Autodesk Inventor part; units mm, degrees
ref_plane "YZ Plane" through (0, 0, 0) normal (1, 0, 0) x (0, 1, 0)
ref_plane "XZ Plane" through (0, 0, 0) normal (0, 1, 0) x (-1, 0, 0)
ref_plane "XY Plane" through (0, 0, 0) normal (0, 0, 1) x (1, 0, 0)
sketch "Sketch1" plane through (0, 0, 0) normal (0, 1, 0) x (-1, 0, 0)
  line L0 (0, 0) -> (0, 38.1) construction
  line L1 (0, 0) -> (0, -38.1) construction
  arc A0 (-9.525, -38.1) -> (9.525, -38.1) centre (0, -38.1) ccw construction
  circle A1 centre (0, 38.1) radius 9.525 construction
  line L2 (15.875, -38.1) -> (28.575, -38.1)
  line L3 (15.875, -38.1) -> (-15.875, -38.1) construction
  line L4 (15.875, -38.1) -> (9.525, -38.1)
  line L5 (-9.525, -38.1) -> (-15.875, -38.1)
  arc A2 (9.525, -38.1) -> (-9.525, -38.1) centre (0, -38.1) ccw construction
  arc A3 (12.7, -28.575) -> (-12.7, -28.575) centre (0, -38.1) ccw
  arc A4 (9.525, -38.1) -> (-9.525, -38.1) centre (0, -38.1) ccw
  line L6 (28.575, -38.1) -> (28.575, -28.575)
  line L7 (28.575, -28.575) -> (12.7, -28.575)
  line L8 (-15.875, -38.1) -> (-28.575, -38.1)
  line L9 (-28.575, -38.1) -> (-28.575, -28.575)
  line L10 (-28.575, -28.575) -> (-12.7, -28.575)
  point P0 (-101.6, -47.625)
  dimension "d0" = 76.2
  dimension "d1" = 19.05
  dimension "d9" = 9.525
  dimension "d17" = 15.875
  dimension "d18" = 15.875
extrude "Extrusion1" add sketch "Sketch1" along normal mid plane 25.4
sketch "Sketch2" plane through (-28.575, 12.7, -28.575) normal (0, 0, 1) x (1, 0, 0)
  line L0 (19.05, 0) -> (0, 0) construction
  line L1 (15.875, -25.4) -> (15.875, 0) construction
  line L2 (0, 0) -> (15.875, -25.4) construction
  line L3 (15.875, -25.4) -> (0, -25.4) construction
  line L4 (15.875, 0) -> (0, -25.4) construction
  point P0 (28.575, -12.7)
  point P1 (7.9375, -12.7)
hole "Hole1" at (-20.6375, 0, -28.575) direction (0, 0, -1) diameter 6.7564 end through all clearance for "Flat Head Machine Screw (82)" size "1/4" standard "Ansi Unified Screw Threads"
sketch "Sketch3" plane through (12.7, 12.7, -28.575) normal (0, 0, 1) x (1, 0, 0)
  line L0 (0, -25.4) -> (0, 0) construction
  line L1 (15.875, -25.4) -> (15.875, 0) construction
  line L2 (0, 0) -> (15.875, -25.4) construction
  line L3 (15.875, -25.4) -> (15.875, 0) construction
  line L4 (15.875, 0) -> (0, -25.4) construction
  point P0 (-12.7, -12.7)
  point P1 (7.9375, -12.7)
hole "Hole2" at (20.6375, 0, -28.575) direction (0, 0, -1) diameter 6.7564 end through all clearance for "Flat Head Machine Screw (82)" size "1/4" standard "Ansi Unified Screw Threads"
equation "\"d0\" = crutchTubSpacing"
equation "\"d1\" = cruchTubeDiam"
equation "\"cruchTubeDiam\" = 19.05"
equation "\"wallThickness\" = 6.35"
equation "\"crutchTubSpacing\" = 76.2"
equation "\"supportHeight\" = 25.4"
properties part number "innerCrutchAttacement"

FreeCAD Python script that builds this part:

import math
import FreeCAD as App
import Part
import Sketcher
Q = App.Units.Quantity

doc = App.newDocument("Part")
body = doc.addObject("PartDesign::Body", "Body")

sketch1 = body.newObject("Sketcher::SketchObject", "Sketch")
sketch1.AttachmentSupport = (doc.getObject("XZ_Plane"), [""])
sketch1.MapMode = "FlatFace"
sketch1.addGeometry(Part.LineSegment(App.Vector(-10, -38, 0), App.Vector(-29, -38, 0)), False)
sketch1.addGeometry(Part.LineSegment(App.Vector(-29, -38, 0), App.Vector(-29, -29, 0)), False)
sketch1.addGeometry(Part.LineSegment(App.Vector(-29, -29, 0), App.Vector(-13, -29, 0)), False)
sketch1.addGeometry(Part.ArcOfCircle(Part.Circle(App.Vector(0, -38, 0), App.Vector(0, 0, 1), 16), math.radians(37), math.radians(143)), False)
sketch1.addGeometry(Part.LineSegment(App.Vector(13, -29, 0), App.Vector(29, -29, 0)), False)
sketch1.addGeometry(Part.LineSegment(App.Vector(29, -29, 0), App.Vector(29, -38, 0)), False)
sketch1.addGeometry(Part.LineSegment(App.Vector(29, -38, 0), App.Vector(10, -38, 0)), False)
sketch1.addGeometry(Part.ArcOfCircle(Part.Circle(App.Vector(0, -38, 0), App.Vector(0, 0, 1), 10), math.radians(0), math.radians(180)), False)
sketch1.addConstraint(Sketcher.Constraint("Coincident", 0, 2, 1, 1))
sketch1.addConstraint(Sketcher.Constraint("Coincident", 1, 2, 2, 1))
sketch1.addConstraint(Sketcher.Constraint("Coincident", 2, 2, 3, 2))
sketch1.addConstraint(Sketcher.Constraint("Coincident", 3, 1, 4, 1))
sketch1.addConstraint(Sketcher.Constraint("Coincident", 4, 2, 5, 1))
sketch1.addConstraint(Sketcher.Constraint("Coincident", 5, 2, 6, 1))
sketch1.addConstraint(Sketcher.Constraint("Coincident", 6, 2, 7, 1))
sketch1.addConstraint(Sketcher.Constraint("Coincident", 7, 2, 0, 1))
sketch1.addConstraint(Sketcher.Constraint("Horizontal", 0))
sketch1.addConstraint(Sketcher.Constraint("Vertical", 1))
sketch1.addConstraint(Sketcher.Constraint("Horizontal", 2))
sketch1.addConstraint(Sketcher.Constraint("Horizontal", 4))
sketch1.addConstraint(Sketcher.Constraint("Vertical", 5))
sketch1.addConstraint(Sketcher.Constraint("Horizontal", 6))
sketch1.addConstraint(Sketcher.Constraint("Coincident", 7, 3, 3, 3))
sketch1.addConstraint(Sketcher.Constraint("Symmetric", 2, 2, 3, 1, -2))
sketch1.addConstraint(Sketcher.Constraint("Symmetric", 0, 2, 5, 2, -2))
sketch1.addConstraint(Sketcher.Constraint("Horizontal", 7, 3, 0, 2))
sketch1.addConstraint(Sketcher.Constraint("Radius", 3, Q("0.625 in")))
sketch1.addConstraint(Sketcher.Constraint("Radius", 7, Q("0.375 in")))
sketch1.addConstraint(Sketcher.Constraint("DistanceX", 0, 2, 0, 1, Q("0.75 in")))
sketch1.addConstraint(Sketcher.Constraint("DistanceX", 2, 1, 2, 2, Q("0.625 in")))
sketch1.addConstraint(Sketcher.Constraint("DistanceY", 3, 3, -1, 1, Q("1.5 in")))
pad1 = body.newObject("PartDesign::Pad", "Pad")
pad1.Profile = sketch1
pad1.Length = Q("1 in")
pad1.Midplane = True

sketch2 = body.newObject("Sketcher::SketchObject", "Sketch001")
sketch2.AttachmentSupport = (doc.getObject("XY_Plane"), [""])
sketch2.MapMode = "FlatFace"
sketch2.AttachmentOffset = App.Placement(App.Vector(0, 0, -1.125 * 25.4), App.Rotation())
sketch2.addGeometry(Part.Circle(App.Vector(-20.6, 0, 0), App.Vector(0, 0, 1), 3.4), False)
sketch2.addConstraint(Sketcher.Constraint("PointOnObject", 0, 3, -1))
sketch2.addConstraint(Sketcher.Constraint("Diameter", 0, Q("0.266 in")))
sketch2.addConstraint(Sketcher.Constraint("DistanceX", 0, 3, -1, 1, Q("0.8125 in")))
doc.recompute()
hole = body.newObject("PartDesign::Hole", "Hole")
hole.Profile = sketch2
hole.ThreadType = "None"
hole.Diameter = Q("0.266 in")
hole.DepthType = "ThroughAll"

sketch3 = body.newObject("Sketcher::SketchObject", "Sketch002")
sketch3.AttachmentSupport = (doc.getObject("XY_Plane"), [""])
sketch3.MapMode = "FlatFace"
sketch3.AttachmentOffset = App.Placement(App.Vector(0, 0, -1.125 * 25.4), App.Rotation())
sketch3.addGeometry(Part.Circle(App.Vector(20.6, 0, 0), App.Vector(0, 0, 1), 3.4), False)
sketch3.addConstraint(Sketcher.Constraint("PointOnObject", 0, 3, -1))
sketch3.addConstraint(Sketcher.Constraint("Diameter", 0, Q("0.266 in")))
sketch3.addConstraint(Sketcher.Constraint("DistanceX", -1, 1, 0, 3, Q("0.8125 in")))
doc.recompute()
hole2 = body.newObject("PartDesign::Hole", "Hole001")
hole2.Profile = sketch3
hole2.ThreadType = "None"
hole2.Diameter = Q("0.266 in")
hole2.DepthType = "ThroughAll"

doc.recompute()
